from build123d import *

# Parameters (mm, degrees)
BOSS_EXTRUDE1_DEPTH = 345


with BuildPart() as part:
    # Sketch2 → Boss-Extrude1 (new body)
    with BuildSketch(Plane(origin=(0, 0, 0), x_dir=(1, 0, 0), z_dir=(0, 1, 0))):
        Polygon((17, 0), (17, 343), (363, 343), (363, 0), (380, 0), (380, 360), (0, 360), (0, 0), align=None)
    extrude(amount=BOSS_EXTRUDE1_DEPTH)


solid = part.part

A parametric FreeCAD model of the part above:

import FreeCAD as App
import Part
import Sketcher
Q = App.Units.Quantity

doc = App.newDocument("Part")
body = doc.addObject("PartDesign::Body", "Body")

sketch1 = doc.addObject("Sketcher::SketchObject", "Sketch")
body.addObject(sketch1)
sketch1.AttachmentSupport = (doc.XZ_Plane, [""])
sketch1.MapMode = "FlatFace"
sketch1.addGeometry([
    Part.LineSegment(App.Vector(17, 0, 0), App.Vector(17, -343, 0)),
    Part.LineSegment(App.Vector(17, -343, 0), App.Vector(363, -343, 0)),
    Part.LineSegment(App.Vector(363, -343, 0), App.Vector(363, 0, 0)),
    Part.LineSegment(App.Vector(363, 0, 0), App.Vector(380, 0, 0)),
    Part.LineSegment(App.Vector(380, 0, 0), App.Vector(380, -360, 0)),
    Part.LineSegment(App.Vector(380, -360, 0), App.Vector(0, -360, 0)),
    Part.LineSegment(App.Vector(0, -360, 0), App.Vector(0, 0, 0)),
    Part.LineSegment(App.Vector(0, 0, 0), App.Vector(17, 0, 0)),
], False)
sketch1.addConstraint([
    Sketcher.Constraint("Coincident", 0, 2, 1, 1),
    Sketcher.Constraint("Coincident", 1, 2, 2, 1),
    Sketcher.Constraint("Coincident", 2, 2, 3, 1),
    Sketcher.Constraint("Coincident", 3, 2, 4, 1),
    Sketcher.Constraint("Coincident", 4, 2, 5, 1),
    Sketcher.Constraint("Coincident", 5, 2, 6, 1),
    Sketcher.Constraint("Coincident", 6, 2, 7, 1),
    Sketcher.Constraint("Coincident", 7, 2, 0, 1),
    Sketcher.Constraint("Vertical", 0),
    Sketcher.Constraint("Horizontal", 1),
    Sketcher.Constraint("Vertical", 2),
    Sketcher.Constraint("Horizontal", 3),
    Sketcher.Constraint("Vertical", 4),
    Sketcher.Constraint("Horizontal", 5),
    Sketcher.Constraint("Vertical", 6),
    Sketcher.Constraint("Horizontal", 7),
    Sketcher.Constraint("Coincident", 6, 2, -1, 1),
    Sketcher.Constraint("PointOnObject", 2, 2, -1),
    Sketcher.Constraint("Equal", 3, 7),
    Sketcher.Constraint("DistanceX", 1, 1, 1, 2, Q("346 mm")),
    Sketcher.Constraint("DistanceX", 3, 1, 3, 2, Q("17 mm")),
    Sketcher.Constraint("DistanceY", 0, 2, 0, 1, Q("343 mm")),
    Sketcher.Constraint("DistanceY", 4, 2, 4, 1, Q("360 mm")),
])
pad1 = doc.addObject("PartDesign::Pad", "Pad")
body.addObject(pad1)
pad1.Profile = sketch1
pad1.Length = 345
pad1.Reversed = True

doc.recompute()
